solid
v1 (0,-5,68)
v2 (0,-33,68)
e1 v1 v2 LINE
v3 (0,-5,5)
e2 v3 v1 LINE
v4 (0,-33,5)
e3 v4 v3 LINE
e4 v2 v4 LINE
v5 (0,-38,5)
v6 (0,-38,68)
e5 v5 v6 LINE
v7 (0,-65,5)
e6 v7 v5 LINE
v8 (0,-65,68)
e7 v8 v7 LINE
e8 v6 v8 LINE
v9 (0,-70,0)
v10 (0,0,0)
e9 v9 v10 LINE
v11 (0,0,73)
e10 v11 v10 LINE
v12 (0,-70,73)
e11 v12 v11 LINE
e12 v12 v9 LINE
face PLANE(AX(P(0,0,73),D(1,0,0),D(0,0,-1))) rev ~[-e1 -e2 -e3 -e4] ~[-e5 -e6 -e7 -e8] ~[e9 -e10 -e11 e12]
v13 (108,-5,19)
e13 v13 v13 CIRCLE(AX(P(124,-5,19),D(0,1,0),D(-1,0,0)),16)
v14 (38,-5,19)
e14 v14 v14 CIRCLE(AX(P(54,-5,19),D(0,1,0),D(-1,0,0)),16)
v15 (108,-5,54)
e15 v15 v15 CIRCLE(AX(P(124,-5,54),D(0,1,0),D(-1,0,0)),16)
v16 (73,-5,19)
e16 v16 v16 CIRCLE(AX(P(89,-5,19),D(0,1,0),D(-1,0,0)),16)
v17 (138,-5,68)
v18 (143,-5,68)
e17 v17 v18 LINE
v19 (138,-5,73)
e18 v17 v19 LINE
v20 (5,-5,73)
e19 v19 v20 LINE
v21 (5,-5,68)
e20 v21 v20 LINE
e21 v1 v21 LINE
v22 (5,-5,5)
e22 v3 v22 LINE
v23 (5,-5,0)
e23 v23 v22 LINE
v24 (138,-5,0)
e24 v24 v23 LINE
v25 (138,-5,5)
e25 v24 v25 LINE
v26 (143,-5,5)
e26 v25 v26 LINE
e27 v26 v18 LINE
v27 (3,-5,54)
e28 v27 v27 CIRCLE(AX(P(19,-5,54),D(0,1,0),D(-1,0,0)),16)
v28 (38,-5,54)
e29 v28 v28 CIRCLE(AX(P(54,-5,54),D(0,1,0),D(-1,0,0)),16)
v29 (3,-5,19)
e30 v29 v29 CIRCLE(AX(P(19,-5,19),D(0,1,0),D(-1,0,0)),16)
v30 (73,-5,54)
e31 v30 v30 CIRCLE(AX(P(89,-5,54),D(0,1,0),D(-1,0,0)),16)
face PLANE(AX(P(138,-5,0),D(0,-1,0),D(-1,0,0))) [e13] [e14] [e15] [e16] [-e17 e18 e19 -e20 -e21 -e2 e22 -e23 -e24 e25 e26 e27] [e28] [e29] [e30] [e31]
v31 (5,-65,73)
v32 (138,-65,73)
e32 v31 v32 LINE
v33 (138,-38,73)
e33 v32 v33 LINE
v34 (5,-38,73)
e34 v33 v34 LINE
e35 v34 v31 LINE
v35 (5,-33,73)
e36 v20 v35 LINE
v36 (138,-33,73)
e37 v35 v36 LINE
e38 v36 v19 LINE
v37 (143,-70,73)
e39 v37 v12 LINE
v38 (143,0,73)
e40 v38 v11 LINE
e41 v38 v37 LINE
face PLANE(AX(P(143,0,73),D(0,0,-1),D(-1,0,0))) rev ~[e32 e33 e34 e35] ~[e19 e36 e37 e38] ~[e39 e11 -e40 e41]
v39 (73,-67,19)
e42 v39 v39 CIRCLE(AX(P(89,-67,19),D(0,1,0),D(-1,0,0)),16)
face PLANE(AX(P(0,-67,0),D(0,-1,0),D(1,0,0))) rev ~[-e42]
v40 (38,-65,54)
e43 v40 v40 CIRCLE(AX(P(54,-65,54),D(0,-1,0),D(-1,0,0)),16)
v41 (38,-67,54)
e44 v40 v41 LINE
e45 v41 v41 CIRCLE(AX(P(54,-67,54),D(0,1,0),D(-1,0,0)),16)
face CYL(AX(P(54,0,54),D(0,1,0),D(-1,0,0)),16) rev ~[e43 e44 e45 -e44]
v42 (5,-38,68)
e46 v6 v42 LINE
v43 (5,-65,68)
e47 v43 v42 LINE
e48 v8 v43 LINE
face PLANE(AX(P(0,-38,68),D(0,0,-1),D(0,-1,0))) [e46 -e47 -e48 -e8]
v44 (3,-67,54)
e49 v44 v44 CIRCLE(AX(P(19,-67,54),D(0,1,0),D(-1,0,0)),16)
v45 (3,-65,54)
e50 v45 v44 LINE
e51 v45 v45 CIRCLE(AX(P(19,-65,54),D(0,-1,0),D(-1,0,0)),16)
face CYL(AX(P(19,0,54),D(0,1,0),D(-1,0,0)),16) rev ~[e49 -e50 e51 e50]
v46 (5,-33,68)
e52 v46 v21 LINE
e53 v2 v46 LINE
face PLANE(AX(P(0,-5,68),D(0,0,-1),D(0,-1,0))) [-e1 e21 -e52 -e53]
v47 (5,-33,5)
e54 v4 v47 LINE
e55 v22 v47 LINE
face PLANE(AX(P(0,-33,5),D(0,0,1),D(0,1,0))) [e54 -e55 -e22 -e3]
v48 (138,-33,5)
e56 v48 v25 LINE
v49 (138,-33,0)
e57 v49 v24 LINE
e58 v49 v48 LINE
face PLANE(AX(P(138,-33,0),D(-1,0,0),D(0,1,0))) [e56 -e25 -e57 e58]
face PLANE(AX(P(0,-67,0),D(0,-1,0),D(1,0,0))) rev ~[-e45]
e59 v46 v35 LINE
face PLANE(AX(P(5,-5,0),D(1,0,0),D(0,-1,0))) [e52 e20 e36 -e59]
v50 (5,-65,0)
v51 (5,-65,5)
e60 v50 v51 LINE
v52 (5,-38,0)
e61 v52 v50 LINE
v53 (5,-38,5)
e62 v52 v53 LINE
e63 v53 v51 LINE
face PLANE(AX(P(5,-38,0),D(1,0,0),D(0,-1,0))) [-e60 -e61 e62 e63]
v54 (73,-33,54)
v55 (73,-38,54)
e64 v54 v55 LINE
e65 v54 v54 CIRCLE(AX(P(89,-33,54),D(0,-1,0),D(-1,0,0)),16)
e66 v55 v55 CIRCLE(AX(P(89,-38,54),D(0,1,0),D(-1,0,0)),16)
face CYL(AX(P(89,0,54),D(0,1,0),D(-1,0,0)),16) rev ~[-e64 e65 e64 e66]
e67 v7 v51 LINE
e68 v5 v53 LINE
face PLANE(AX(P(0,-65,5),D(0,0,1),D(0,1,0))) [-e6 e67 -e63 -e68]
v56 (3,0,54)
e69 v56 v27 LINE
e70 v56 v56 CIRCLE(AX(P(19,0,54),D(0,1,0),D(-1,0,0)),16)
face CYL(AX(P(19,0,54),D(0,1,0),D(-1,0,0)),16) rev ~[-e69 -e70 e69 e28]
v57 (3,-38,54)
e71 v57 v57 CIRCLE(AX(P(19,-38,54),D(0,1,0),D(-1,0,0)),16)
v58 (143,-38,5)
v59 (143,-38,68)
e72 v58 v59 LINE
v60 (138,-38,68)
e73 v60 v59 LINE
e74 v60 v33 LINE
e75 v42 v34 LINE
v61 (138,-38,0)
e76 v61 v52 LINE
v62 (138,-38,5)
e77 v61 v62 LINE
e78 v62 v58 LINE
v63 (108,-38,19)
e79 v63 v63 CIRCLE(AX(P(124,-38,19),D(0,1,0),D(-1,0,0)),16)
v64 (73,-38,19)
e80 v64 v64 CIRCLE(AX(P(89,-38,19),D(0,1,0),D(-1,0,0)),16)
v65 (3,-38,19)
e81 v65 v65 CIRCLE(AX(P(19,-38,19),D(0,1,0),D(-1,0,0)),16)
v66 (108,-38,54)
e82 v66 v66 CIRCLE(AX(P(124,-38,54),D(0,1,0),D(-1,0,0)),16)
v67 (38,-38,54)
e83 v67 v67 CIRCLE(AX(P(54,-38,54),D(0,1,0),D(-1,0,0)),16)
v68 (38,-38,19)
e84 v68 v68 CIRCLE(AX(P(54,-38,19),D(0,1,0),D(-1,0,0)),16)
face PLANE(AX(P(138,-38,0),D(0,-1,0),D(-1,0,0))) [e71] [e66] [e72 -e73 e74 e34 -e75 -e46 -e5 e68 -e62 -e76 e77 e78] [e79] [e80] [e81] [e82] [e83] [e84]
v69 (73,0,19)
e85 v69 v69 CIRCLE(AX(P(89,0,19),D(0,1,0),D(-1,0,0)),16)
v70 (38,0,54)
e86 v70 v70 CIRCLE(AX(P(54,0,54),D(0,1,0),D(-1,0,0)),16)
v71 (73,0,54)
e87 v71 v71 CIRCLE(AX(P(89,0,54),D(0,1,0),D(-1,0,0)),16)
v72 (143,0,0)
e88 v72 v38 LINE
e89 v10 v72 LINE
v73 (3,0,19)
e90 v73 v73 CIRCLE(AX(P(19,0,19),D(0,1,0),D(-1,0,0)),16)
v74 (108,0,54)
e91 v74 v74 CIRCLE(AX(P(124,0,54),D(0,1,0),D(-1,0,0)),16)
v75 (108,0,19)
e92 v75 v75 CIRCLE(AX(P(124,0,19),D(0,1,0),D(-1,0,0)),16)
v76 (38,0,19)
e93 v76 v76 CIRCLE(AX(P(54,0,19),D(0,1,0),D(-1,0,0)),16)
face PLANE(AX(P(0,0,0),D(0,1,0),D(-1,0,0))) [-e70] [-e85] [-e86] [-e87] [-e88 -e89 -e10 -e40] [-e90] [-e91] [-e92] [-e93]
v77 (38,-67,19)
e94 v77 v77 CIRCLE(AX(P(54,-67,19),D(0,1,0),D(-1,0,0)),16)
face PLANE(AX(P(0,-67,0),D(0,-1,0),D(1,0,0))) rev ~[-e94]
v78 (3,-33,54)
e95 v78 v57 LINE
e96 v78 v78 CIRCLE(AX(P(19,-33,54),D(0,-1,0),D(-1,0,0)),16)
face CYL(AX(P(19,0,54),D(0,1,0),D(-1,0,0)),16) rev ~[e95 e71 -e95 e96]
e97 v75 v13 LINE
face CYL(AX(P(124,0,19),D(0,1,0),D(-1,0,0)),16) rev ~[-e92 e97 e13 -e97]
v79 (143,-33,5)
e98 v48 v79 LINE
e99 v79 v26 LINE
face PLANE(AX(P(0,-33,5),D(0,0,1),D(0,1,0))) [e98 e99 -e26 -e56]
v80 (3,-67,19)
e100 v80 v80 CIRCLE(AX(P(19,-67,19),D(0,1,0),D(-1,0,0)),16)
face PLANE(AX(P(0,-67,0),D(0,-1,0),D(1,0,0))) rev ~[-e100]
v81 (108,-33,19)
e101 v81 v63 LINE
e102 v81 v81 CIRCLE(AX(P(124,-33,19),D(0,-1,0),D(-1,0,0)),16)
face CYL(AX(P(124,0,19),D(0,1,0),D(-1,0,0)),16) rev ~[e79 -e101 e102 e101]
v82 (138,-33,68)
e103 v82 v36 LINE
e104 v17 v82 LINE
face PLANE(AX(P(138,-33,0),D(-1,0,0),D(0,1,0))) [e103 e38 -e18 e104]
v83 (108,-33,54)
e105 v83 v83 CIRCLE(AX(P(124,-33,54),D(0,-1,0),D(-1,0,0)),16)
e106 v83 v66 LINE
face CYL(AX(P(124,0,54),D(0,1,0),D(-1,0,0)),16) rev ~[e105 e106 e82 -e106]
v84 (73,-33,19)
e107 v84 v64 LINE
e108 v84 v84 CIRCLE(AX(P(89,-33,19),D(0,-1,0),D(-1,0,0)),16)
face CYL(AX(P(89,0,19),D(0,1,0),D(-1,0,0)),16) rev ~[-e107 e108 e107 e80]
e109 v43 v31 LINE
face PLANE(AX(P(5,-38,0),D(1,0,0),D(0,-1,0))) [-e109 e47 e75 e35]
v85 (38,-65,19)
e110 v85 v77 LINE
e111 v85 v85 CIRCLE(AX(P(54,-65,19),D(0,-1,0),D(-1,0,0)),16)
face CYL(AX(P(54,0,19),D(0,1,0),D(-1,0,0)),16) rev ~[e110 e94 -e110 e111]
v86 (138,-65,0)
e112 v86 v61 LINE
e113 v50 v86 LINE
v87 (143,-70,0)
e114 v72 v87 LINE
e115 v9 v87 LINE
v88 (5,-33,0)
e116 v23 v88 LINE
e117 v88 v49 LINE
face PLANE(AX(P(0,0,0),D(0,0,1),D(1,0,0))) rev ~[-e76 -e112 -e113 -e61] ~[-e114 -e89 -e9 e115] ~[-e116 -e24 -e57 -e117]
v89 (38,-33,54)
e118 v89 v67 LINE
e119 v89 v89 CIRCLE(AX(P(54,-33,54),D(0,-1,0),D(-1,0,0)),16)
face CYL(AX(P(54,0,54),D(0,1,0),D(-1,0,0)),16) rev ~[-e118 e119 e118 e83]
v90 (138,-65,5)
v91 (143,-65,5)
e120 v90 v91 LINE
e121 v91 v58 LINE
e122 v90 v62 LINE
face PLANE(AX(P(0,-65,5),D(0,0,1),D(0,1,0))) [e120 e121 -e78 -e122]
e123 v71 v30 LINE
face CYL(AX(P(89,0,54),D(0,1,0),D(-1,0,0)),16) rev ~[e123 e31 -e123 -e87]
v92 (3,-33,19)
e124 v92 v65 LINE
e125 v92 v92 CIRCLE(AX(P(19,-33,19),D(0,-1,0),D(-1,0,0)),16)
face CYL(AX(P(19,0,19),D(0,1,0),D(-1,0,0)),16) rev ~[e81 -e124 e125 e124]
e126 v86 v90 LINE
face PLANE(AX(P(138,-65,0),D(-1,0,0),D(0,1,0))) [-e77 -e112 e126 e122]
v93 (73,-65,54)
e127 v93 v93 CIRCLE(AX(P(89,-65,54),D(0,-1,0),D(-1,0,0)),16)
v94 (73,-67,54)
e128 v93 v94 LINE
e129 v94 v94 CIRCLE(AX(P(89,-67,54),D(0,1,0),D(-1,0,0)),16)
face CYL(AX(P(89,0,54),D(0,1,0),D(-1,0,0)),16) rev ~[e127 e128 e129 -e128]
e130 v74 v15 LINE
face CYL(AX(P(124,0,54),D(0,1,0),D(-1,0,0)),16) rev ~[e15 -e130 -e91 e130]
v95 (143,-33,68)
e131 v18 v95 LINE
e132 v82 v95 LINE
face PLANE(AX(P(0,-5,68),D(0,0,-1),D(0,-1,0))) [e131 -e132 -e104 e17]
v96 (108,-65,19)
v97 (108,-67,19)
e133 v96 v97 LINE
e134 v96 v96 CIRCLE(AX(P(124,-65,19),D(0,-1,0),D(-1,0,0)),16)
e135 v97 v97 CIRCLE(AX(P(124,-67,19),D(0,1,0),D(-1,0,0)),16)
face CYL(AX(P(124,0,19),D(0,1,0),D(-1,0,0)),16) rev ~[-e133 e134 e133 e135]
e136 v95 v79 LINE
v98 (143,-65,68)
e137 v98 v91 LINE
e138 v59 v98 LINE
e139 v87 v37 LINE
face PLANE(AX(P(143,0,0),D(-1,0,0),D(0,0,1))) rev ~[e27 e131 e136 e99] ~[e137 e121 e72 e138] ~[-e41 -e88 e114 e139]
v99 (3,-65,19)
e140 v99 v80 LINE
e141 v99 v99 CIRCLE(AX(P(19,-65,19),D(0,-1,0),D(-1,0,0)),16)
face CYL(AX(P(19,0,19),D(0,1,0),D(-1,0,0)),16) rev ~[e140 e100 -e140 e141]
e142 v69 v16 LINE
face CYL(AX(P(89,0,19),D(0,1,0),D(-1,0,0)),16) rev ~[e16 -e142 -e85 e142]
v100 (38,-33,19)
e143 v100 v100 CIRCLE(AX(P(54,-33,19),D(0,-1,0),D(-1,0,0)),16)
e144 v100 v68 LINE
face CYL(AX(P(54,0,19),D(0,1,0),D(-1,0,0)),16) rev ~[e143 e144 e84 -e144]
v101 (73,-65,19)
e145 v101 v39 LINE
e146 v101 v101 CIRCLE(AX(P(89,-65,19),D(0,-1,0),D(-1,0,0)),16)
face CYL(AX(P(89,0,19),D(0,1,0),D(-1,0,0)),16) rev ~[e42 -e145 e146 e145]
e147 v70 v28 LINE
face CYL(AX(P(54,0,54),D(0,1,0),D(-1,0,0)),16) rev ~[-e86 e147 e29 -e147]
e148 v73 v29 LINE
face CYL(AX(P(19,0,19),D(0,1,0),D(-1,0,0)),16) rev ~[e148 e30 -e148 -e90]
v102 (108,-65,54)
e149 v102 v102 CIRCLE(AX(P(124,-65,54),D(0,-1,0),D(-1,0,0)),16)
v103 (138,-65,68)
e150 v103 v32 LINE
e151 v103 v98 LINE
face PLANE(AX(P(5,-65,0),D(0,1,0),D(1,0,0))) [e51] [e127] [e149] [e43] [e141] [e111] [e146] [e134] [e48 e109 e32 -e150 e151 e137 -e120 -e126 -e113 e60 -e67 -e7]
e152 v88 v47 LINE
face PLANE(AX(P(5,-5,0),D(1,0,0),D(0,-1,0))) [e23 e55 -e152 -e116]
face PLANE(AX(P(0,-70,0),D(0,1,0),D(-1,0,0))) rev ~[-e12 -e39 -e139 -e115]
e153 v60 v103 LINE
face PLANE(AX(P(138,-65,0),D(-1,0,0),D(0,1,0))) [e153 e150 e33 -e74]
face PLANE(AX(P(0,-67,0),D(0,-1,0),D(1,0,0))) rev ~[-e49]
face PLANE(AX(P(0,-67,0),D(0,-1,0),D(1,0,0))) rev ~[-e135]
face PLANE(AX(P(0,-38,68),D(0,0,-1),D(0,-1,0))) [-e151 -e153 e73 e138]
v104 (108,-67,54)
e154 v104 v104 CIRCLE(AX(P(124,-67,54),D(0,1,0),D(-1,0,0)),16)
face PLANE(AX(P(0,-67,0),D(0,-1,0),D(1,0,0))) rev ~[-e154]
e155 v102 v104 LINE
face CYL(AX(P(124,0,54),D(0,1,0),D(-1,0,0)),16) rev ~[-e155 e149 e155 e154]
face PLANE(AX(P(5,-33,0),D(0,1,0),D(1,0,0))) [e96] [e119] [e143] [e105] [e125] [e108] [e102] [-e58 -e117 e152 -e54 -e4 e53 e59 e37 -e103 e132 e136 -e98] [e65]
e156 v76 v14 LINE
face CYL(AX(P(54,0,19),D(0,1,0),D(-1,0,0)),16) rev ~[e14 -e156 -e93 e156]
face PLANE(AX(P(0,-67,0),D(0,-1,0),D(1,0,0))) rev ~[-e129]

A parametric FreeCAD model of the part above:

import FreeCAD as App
import Part
import Sketcher

doc = App.newDocument("Part")
body = doc.addObject("PartDesign::Body", "Body")

sketch1 = body.newObject("Sketcher::SketchObject", "Sketch")
sketch1.AttachmentSupport = (doc.getObject("XZ_Plane"), [""])
sketch1.MapMode = "FlatFace"
sketch1.addGeometry([
    Part.LineSegment(App.Vector(143, 0, 0), App.Vector(0, 0, 0)),
    Part.LineSegment(App.Vector(0, 0, 0), App.Vector(0, 73, 0)),
    Part.LineSegment(App.Vector(0, 73, 0), App.Vector(143, 73, 0)),
    Part.LineSegment(App.Vector(143, 73, 0), App.Vector(143, 0, 0)),
    Part.Circle(App.Vector(124, 19, 0), App.Vector(0, 0, 1), 16),
    Part.Circle(App.Vector(89, 19, 0), App.Vector(0, 0, 1), 16),
    Part.Circle(App.Vector(54, 19, 0), App.Vector(0, 0, 1), 16),
    Part.Circle(App.Vector(19, 19, 0), App.Vector(0, 0, 1), 16),
    Part.Circle(App.Vector(124, 54, 0), App.Vector(0, 0, 1), 16),
    Part.Circle(App.Vector(89, 54, 0), App.Vector(0, 0, 1), 16),
    Part.Circle(App.Vector(54, 54, 0), App.Vector(0, 0, 1), 16),
    Part.Circle(App.Vector(19, 54, 0), App.Vector(0, 0, 1), 16),
], False)
sketch1.addConstraint([
    Sketcher.Constraint("Coincident", 0, 2, 1, 1),
    Sketcher.Constraint("Coincident", 1, 2, 2, 1),
    Sketcher.Constraint("Coincident", 2, 2, 3, 1),
    Sketcher.Constraint("Coincident", 3, 2, 0, 1),
    Sketcher.Constraint("Horizontal", 0),
    Sketcher.Constraint("Vertical", 1),
    Sketcher.Constraint("Horizontal", 2),
    Sketcher.Constraint("Vertical", 3),
    Sketcher.Constraint("Coincident", 0, 2, -1, 1),
    Sketcher.Constraint("Equal", 4, 5),
    Sketcher.Constraint("Equal", 5, 6),
    Sketcher.Constraint("Equal", 6, 7),
    Sketcher.Constraint("Equal", 7, 8),
    Sketcher.Constraint("Equal", 8, 9),
    Sketcher.Constraint("Equal", 9, 10),
    Sketcher.Constraint("Equal", 10, 11),
    Sketcher.Constraint("Horizontal", 4, 3, 5, 3),
    Sketcher.Constraint("Horizontal", 5, 3, 6, 3),
    Sketcher.Constraint("Horizontal", 6, 3, 7, 3),
    Sketcher.Constraint("Horizontal", 8, 3, 9, 3),
    Sketcher.Constraint("Horizontal", 9, 3, 10, 3),
    Sketcher.Constraint("Horizontal", 10, 3, 11, 3),
    Sketcher.Constraint("Vertical", 4, 3, 8, 3),
    Sketcher.Constraint("Vertical", 5, 3, 9, 3),
    Sketcher.Constraint("Vertical", 6, 3, 10, 3),
    Sketcher.Constraint("Vertical", 7, 3, 11, 3),
    Sketcher.Constraint("Diameter", 4, 32.0),
    Sketcher.Constraint("DistanceY", -1, 1, 4, 3, 19.0),
    Sketcher.Constraint("DistanceX", -1, 1, 7, 3, 19.0),
    Sketcher.Constraint("DistanceX", 5, 3, 4, 3, 35.0),
    Sketcher.Constraint("DistanceX", 6, 3, 5, 3, 35.0),
    Sketcher.Constraint("DistanceX", 7, 3, 6, 3, 35.0),
    Sketcher.Constraint("DistanceY", 4, 3, 8, 3, 35.0),
    Sketcher.Constraint("DistanceY", 11, 3, 1, 2, 19.0),
    Sketcher.Constraint("DistanceX", 8, 3, 2, 2, 19.0),
])
pad1 = body.newObject("PartDesign::Pad", "Pad")
pad1.Profile = sketch1
pad1.Length = 70

sketch2 = body.newObject("Sketcher::SketchObject", "Sketch001")
sketch2.AttachmentSupport = (doc.getObject("XY_Plane"), [""])
sketch2.MapMode = "FlatFace"
sketch2.addGeometry([
    Part.LineSegment(App.Vector(138, -65, 0), App.Vector(5, -65, 0)),
    Part.LineSegment(App.Vector(5, -65, 0), App.Vector(5, -38, 0)),
    Part.LineSegment(App.Vector(5, -38, 0), App.Vector(138, -38, 0)),
    Part.LineSegment(App.Vector(138, -38, 0), App.Vector(138, -65, 0)),
    Part.LineSegment(App.Vector(5, -5, 0), App.Vector(138, -5, 0)),
    Part.LineSegment(App.Vector(138, -5, 0), App.Vector(138, -33, 0)),
    Part.LineSegment(App.Vector(138, -33, 0), App.Vector(5, -33, 0)),
    Part.LineSegment(App.Vector(5, -33, 0), App.Vector(5, -5, 0)),
], False)
sketch2.addConstraint([
    Sketcher.Constraint("Coincident", 0, 2, 1, 1),
    Sketcher.Constraint("Coincident", 1, 2, 2, 1),
    Sketcher.Constraint("Coincident", 2, 2, 3, 1),
    Sketcher.Constraint("Coincident", 3, 2, 0, 1),
    Sketcher.Constraint("Coincident", 4, 2, 5, 1),
    Sketcher.Constraint("Coincident", 5, 2, 6, 1),
    Sketcher.Constraint("Coincident", 6, 2, 7, 1),
    Sketcher.Constraint("Coincident", 7, 2, 4, 1),
    Sketcher.Constraint("Horizontal", 0),
    Sketcher.Constraint("Vertical", 1),
    Sketcher.Constraint("Horizontal", 2),
    Sketcher.Constraint("Vertical", 3),
    Sketcher.Constraint("Horizontal", 4),
    Sketcher.Constraint("Vertical", 5),
    Sketcher.Constraint("Horizontal", 6),
    Sketcher.Constraint("Vertical", 7),
    Sketcher.Constraint("Vertical", 3, 2, 4, 2),
    Sketcher.Constraint("Vertical", 1, 2, 6, 2),
    Sketcher.Constraint("DistanceX", -1, 1, 0, 2, 5.0),
    Sketcher.Constraint("DistanceY", 4, 2, -1, 1, 5.0),
    Sketcher.Constraint("DistanceY", 2, 2, 5, 2, 5.0),
    Sketcher.Constraint("DistanceX", 0, 2, 0, 1, 133.0),
    Sketcher.Constraint("DistanceY", 1, 1, 1, 2, 27.0),
    Sketcher.Constraint("DistanceY", 5, 2, 5, 1, 28.0),
])
pocket1 = body.newObject("PartDesign::Pocket", "Pocket")
pocket1.Profile = sketch2
pocket1.Type = "ThroughAll"
pocket1.Reversed = True

sketch3 = body.newObject("Sketcher::SketchObject", "Sketch002")
sketch3.AttachmentSupport = (doc.getObject("YZ_Plane"), [""])
sketch3.MapMode = "FlatFace"
sketch3.addGeometry([
    Part.LineSegment(App.Vector(-5, 68, 0), App.Vector(-5, 5, 0)),
    Part.LineSegment(App.Vector(-5, 5, 0), App.Vector(-33, 5, 0)),
    Part.LineSegment(App.Vector(-33, 5, 0), App.Vector(-33, 68, 0)),
    Part.LineSegment(App.Vector(-33, 68, 0), App.Vector(-5, 68, 0)),
    Part.LineSegment(App.Vector(-38, 68, 0), App.Vector(-38, 5, 0)),
    Part.LineSegment(App.Vector(-38, 5, 0), App.Vector(-65, 5, 0)),
    Part.LineSegment(App.Vector(-65, 5, 0), App.Vector(-65, 68, 0)),
    Part.LineSegment(App.Vector(-65, 68, 0), App.Vector(-38, 68, 0)),
], False)
sketch3.addConstraint([
    Sketcher.Constraint("Coincident", 0, 2, 1, 1),
    Sketcher.Constraint("Coincident", 1, 2, 2, 1),
    Sketcher.Constraint("Coincident", 2, 2, 3, 1),
    Sketcher.Constraint("Coincident", 3, 2, 0, 1),
    Sketcher.Constraint("Coincident", 4, 2, 5, 1),
    Sketcher.Constraint("Coincident", 5, 2, 6, 1),
    Sketcher.Constraint("Coincident", 6, 2, 7, 1),
    Sketcher.Constraint("Coincident", 7, 2, 4, 1),
    Sketcher.Constraint("Vertical", 0),
    Sketcher.Constraint("Horizontal", 1),
    Sketcher.Constraint("Vertical", 2),
    Sketcher.Constraint("Horizontal", 3),
    Sketcher.Constraint("Vertical", 4),
    Sketcher.Constraint("Horizontal", 5),
    Sketcher.Constraint("Vertical", 6),
    Sketcher.Constraint("Horizontal", 7),
    Sketcher.Constraint("Horizontal", 1, 2, 4, 2),
    Sketcher.Constraint("Horizontal", 3, 2, 6, 2),
    Sketcher.Constraint("DistanceX", 0, 2, -1, 1, 5.0),
    Sketcher.Constraint("DistanceY", -1, 1, 0, 2, 5.0),
    Sketcher.Constraint("DistanceX", 4, 2, 1, 2, 5.0),
    Sketcher.Constraint("DistanceX", 1, 2, 1, 1, 28.0),
    Sketcher.Constraint("DistanceX", 5, 2, 5, 1, 27.0),
    Sketcher.Constraint("DistanceY", 0, 2, 0, 1, 63.0),
])
pocket2 = body.newObject("PartDesign::Pocket", "Pocket001")
pocket2.Profile = sketch3
pocket2.Type = "ThroughAll"
pocket2.Reversed = True

sketch4 = body.newObject("Sketcher::SketchObject", "Sketch003")
sketch4.AttachmentSupport = (doc.getObject("XZ_Plane"), [""])
sketch4.MapMode = "FlatFace"
sketch4.AttachmentOffset = App.Placement(App.Vector(0, 0, 70), App.Rotation())
sketch4.addGeometry([
    Part.LineSegment(App.Vector(0, 0, 0), App.Vector(143, 0, 0)),
    Part.LineSegment(App.Vector(143, 0, 0), App.Vector(143, 73, 0)),
    Part.LineSegment(App.Vector(143, 73, 0), App.Vector(0, 73, 0)),
    Part.LineSegment(App.Vector(0, 73, 0), App.Vector(0, 0, 0)),
], False)
sketch4.addConstraint([
    Sketcher.Constraint("Coincident", 0, 2, 1, 1),
    Sketcher.Constraint("Coincident", 1, 2, 2, 1),
    Sketcher.Constraint("Coincident", 2, 2, 3, 1),
    Sketcher.Constraint("Coincident", 3, 2, 0, 1),
    Sketcher.Constraint("Horizontal", 0),
    Sketcher.Constraint("Vertical", 1),
    Sketcher.Constraint("Horizontal", 2),
    Sketcher.Constraint("Vertical", 3),
    Sketcher.Constraint("Coincident", 3, 2, -1, 1),
    Sketcher.Constraint("DistanceX", 0, 1, 0, 2, 143.0),
    Sketcher.Constraint("DistanceY", 1, 1, 1, 2, 73.0),
])
pad2 = body.newObject("PartDesign::Pad", "Pad001")
pad2.Profile = sketch4
pad2.Length = 3
pad2.Reversed = True

doc.recompute()
